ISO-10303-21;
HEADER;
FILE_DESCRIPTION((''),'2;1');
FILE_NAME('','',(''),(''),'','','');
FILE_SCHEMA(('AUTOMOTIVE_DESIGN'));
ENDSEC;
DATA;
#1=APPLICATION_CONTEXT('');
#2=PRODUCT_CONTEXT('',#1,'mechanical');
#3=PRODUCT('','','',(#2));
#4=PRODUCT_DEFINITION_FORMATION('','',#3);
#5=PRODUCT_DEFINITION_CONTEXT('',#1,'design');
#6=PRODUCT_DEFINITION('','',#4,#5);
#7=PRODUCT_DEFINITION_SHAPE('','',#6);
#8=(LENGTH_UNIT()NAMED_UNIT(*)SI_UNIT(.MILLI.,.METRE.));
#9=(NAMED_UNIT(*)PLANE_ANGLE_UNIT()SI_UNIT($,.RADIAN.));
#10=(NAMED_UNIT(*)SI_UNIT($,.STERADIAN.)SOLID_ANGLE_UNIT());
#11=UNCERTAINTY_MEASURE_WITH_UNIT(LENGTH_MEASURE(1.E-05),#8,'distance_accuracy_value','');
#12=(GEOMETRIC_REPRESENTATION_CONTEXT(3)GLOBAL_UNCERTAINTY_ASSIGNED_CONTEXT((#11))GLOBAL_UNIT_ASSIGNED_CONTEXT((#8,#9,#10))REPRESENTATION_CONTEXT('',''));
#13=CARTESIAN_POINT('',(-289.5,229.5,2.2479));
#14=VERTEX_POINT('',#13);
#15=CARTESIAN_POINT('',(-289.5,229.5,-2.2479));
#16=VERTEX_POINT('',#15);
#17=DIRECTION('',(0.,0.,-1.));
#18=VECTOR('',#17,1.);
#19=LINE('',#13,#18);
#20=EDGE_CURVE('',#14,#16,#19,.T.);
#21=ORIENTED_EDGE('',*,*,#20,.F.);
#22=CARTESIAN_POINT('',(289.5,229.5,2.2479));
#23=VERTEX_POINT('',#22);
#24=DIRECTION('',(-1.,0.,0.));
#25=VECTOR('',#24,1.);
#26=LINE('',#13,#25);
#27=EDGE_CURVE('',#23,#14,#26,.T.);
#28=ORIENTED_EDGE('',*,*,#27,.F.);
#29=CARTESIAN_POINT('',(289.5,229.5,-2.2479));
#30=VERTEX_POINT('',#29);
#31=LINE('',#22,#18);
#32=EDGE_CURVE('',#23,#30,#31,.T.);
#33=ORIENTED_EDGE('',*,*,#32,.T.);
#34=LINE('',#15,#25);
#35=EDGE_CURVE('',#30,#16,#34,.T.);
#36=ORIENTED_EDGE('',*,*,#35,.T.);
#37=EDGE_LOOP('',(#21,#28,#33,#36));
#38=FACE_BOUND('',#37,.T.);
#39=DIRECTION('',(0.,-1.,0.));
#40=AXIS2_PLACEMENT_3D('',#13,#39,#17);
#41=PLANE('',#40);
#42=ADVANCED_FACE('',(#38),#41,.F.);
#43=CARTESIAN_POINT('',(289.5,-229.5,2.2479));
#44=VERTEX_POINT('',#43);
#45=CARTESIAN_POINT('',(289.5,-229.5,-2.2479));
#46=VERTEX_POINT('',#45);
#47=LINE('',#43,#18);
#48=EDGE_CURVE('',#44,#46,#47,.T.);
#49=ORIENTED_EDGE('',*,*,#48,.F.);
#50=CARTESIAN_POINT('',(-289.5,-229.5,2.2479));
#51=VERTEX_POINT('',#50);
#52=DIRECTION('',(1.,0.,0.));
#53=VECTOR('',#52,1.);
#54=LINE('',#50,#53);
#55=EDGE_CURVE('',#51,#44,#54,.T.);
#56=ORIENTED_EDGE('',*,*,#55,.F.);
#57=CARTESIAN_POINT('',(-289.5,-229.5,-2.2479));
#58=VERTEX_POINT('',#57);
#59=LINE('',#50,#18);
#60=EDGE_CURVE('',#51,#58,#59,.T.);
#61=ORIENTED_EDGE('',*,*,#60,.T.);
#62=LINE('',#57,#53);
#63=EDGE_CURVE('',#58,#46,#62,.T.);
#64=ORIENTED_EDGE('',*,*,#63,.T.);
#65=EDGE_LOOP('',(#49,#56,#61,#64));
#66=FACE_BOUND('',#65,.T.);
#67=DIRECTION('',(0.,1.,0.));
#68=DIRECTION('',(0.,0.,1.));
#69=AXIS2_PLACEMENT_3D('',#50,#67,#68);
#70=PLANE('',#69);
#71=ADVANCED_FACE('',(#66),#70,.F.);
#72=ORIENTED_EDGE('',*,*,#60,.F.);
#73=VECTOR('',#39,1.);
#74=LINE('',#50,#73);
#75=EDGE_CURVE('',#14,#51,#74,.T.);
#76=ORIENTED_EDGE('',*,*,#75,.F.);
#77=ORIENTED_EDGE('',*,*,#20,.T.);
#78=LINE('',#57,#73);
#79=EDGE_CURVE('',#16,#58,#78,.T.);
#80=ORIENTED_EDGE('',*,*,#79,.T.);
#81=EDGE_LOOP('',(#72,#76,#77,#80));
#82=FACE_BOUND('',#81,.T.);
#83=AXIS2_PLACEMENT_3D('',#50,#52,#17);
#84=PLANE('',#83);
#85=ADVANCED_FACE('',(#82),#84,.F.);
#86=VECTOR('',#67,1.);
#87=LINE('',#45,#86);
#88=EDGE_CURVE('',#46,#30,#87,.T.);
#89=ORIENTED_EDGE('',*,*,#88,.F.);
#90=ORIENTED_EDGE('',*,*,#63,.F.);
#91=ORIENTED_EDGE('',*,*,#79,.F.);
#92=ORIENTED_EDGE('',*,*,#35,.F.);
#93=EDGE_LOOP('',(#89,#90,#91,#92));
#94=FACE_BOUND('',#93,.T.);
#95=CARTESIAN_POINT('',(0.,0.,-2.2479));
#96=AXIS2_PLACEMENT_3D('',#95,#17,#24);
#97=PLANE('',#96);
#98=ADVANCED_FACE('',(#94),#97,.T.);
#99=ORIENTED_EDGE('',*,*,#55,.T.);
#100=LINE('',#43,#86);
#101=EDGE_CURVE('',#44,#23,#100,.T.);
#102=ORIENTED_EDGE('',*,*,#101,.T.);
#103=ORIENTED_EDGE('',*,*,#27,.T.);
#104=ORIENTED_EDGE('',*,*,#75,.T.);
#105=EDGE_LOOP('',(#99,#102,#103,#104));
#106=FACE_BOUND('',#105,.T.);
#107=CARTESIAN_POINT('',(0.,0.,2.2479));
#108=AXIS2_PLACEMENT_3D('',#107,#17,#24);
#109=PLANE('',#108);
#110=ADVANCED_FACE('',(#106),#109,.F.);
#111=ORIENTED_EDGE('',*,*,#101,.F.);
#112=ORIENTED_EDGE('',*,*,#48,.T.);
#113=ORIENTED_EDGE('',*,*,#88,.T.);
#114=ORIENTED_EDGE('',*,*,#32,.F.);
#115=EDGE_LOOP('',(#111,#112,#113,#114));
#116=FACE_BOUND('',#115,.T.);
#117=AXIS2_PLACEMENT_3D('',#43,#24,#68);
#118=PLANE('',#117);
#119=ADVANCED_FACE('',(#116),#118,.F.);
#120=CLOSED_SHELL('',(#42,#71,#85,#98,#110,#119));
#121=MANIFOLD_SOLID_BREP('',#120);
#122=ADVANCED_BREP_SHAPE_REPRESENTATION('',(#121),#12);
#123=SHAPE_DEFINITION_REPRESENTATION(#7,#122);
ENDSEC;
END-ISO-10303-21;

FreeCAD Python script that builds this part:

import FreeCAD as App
import Part
import Sketcher

V = App.Vector
Q = App.Units.Quantity

doc = App.newDocument("Part")
body = doc.addObject("PartDesign::Body", "Body")

# Sketch on XY plane
sketch1 = body.newObject("Sketcher::SketchObject", "Sketch")
sketch1.AttachmentSupport = (doc.getObject("XY_Plane"), [""])
sketch1.MapMode = "FlatFace"
sketch1.addGeometry(Part.LineSegment(V(-290, 230, 0), V(-290, -230, 0)), False)
sketch1.addGeometry(Part.LineSegment(V(-290, -230, 0), V(290, -230, 0)), False)
sketch1.addGeometry(Part.LineSegment(V(290, -230, 0), V(290, 230, 0)), False)
sketch1.addGeometry(Part.LineSegment(V(290, 230, 0), V(-290, 230, 0)), False)
sketch1.addConstraint(Sketcher.Constraint("Coincident", 0, 2, 1, 1))
sketch1.addConstraint(Sketcher.Constraint("Coincident", 1, 2, 2, 1))
sketch1.addConstraint(Sketcher.Constraint("Coincident", 2, 2, 3, 1))
sketch1.addConstraint(Sketcher.Constraint("Coincident", 3, 2, 0, 1))
sketch1.addConstraint(Sketcher.Constraint("Vertical", 0))
sketch1.addConstraint(Sketcher.Constraint("Horizontal", 1))
sketch1.addConstraint(Sketcher.Constraint("Vertical", 2))
sketch1.addConstraint(Sketcher.Constraint("Horizontal", 3))
sketch1.addConstraint(Sketcher.Constraint("Symmetric", 0, 2, 2, 2, -1, 1))
sketch1.addConstraint(Sketcher.Constraint("DistanceX", 1, 1, 1, 2, Q("579 mm")))
sketch1.addConstraint(Sketcher.Constraint("DistanceY", 0, 2, 0, 1, Q("459 mm")))
pad1 = body.newObject("PartDesign::Pad", "Pad")
pad1.Profile = sketch1
pad1.Length = 4.4958
pad1.Midplane = True

doc.recompute()
